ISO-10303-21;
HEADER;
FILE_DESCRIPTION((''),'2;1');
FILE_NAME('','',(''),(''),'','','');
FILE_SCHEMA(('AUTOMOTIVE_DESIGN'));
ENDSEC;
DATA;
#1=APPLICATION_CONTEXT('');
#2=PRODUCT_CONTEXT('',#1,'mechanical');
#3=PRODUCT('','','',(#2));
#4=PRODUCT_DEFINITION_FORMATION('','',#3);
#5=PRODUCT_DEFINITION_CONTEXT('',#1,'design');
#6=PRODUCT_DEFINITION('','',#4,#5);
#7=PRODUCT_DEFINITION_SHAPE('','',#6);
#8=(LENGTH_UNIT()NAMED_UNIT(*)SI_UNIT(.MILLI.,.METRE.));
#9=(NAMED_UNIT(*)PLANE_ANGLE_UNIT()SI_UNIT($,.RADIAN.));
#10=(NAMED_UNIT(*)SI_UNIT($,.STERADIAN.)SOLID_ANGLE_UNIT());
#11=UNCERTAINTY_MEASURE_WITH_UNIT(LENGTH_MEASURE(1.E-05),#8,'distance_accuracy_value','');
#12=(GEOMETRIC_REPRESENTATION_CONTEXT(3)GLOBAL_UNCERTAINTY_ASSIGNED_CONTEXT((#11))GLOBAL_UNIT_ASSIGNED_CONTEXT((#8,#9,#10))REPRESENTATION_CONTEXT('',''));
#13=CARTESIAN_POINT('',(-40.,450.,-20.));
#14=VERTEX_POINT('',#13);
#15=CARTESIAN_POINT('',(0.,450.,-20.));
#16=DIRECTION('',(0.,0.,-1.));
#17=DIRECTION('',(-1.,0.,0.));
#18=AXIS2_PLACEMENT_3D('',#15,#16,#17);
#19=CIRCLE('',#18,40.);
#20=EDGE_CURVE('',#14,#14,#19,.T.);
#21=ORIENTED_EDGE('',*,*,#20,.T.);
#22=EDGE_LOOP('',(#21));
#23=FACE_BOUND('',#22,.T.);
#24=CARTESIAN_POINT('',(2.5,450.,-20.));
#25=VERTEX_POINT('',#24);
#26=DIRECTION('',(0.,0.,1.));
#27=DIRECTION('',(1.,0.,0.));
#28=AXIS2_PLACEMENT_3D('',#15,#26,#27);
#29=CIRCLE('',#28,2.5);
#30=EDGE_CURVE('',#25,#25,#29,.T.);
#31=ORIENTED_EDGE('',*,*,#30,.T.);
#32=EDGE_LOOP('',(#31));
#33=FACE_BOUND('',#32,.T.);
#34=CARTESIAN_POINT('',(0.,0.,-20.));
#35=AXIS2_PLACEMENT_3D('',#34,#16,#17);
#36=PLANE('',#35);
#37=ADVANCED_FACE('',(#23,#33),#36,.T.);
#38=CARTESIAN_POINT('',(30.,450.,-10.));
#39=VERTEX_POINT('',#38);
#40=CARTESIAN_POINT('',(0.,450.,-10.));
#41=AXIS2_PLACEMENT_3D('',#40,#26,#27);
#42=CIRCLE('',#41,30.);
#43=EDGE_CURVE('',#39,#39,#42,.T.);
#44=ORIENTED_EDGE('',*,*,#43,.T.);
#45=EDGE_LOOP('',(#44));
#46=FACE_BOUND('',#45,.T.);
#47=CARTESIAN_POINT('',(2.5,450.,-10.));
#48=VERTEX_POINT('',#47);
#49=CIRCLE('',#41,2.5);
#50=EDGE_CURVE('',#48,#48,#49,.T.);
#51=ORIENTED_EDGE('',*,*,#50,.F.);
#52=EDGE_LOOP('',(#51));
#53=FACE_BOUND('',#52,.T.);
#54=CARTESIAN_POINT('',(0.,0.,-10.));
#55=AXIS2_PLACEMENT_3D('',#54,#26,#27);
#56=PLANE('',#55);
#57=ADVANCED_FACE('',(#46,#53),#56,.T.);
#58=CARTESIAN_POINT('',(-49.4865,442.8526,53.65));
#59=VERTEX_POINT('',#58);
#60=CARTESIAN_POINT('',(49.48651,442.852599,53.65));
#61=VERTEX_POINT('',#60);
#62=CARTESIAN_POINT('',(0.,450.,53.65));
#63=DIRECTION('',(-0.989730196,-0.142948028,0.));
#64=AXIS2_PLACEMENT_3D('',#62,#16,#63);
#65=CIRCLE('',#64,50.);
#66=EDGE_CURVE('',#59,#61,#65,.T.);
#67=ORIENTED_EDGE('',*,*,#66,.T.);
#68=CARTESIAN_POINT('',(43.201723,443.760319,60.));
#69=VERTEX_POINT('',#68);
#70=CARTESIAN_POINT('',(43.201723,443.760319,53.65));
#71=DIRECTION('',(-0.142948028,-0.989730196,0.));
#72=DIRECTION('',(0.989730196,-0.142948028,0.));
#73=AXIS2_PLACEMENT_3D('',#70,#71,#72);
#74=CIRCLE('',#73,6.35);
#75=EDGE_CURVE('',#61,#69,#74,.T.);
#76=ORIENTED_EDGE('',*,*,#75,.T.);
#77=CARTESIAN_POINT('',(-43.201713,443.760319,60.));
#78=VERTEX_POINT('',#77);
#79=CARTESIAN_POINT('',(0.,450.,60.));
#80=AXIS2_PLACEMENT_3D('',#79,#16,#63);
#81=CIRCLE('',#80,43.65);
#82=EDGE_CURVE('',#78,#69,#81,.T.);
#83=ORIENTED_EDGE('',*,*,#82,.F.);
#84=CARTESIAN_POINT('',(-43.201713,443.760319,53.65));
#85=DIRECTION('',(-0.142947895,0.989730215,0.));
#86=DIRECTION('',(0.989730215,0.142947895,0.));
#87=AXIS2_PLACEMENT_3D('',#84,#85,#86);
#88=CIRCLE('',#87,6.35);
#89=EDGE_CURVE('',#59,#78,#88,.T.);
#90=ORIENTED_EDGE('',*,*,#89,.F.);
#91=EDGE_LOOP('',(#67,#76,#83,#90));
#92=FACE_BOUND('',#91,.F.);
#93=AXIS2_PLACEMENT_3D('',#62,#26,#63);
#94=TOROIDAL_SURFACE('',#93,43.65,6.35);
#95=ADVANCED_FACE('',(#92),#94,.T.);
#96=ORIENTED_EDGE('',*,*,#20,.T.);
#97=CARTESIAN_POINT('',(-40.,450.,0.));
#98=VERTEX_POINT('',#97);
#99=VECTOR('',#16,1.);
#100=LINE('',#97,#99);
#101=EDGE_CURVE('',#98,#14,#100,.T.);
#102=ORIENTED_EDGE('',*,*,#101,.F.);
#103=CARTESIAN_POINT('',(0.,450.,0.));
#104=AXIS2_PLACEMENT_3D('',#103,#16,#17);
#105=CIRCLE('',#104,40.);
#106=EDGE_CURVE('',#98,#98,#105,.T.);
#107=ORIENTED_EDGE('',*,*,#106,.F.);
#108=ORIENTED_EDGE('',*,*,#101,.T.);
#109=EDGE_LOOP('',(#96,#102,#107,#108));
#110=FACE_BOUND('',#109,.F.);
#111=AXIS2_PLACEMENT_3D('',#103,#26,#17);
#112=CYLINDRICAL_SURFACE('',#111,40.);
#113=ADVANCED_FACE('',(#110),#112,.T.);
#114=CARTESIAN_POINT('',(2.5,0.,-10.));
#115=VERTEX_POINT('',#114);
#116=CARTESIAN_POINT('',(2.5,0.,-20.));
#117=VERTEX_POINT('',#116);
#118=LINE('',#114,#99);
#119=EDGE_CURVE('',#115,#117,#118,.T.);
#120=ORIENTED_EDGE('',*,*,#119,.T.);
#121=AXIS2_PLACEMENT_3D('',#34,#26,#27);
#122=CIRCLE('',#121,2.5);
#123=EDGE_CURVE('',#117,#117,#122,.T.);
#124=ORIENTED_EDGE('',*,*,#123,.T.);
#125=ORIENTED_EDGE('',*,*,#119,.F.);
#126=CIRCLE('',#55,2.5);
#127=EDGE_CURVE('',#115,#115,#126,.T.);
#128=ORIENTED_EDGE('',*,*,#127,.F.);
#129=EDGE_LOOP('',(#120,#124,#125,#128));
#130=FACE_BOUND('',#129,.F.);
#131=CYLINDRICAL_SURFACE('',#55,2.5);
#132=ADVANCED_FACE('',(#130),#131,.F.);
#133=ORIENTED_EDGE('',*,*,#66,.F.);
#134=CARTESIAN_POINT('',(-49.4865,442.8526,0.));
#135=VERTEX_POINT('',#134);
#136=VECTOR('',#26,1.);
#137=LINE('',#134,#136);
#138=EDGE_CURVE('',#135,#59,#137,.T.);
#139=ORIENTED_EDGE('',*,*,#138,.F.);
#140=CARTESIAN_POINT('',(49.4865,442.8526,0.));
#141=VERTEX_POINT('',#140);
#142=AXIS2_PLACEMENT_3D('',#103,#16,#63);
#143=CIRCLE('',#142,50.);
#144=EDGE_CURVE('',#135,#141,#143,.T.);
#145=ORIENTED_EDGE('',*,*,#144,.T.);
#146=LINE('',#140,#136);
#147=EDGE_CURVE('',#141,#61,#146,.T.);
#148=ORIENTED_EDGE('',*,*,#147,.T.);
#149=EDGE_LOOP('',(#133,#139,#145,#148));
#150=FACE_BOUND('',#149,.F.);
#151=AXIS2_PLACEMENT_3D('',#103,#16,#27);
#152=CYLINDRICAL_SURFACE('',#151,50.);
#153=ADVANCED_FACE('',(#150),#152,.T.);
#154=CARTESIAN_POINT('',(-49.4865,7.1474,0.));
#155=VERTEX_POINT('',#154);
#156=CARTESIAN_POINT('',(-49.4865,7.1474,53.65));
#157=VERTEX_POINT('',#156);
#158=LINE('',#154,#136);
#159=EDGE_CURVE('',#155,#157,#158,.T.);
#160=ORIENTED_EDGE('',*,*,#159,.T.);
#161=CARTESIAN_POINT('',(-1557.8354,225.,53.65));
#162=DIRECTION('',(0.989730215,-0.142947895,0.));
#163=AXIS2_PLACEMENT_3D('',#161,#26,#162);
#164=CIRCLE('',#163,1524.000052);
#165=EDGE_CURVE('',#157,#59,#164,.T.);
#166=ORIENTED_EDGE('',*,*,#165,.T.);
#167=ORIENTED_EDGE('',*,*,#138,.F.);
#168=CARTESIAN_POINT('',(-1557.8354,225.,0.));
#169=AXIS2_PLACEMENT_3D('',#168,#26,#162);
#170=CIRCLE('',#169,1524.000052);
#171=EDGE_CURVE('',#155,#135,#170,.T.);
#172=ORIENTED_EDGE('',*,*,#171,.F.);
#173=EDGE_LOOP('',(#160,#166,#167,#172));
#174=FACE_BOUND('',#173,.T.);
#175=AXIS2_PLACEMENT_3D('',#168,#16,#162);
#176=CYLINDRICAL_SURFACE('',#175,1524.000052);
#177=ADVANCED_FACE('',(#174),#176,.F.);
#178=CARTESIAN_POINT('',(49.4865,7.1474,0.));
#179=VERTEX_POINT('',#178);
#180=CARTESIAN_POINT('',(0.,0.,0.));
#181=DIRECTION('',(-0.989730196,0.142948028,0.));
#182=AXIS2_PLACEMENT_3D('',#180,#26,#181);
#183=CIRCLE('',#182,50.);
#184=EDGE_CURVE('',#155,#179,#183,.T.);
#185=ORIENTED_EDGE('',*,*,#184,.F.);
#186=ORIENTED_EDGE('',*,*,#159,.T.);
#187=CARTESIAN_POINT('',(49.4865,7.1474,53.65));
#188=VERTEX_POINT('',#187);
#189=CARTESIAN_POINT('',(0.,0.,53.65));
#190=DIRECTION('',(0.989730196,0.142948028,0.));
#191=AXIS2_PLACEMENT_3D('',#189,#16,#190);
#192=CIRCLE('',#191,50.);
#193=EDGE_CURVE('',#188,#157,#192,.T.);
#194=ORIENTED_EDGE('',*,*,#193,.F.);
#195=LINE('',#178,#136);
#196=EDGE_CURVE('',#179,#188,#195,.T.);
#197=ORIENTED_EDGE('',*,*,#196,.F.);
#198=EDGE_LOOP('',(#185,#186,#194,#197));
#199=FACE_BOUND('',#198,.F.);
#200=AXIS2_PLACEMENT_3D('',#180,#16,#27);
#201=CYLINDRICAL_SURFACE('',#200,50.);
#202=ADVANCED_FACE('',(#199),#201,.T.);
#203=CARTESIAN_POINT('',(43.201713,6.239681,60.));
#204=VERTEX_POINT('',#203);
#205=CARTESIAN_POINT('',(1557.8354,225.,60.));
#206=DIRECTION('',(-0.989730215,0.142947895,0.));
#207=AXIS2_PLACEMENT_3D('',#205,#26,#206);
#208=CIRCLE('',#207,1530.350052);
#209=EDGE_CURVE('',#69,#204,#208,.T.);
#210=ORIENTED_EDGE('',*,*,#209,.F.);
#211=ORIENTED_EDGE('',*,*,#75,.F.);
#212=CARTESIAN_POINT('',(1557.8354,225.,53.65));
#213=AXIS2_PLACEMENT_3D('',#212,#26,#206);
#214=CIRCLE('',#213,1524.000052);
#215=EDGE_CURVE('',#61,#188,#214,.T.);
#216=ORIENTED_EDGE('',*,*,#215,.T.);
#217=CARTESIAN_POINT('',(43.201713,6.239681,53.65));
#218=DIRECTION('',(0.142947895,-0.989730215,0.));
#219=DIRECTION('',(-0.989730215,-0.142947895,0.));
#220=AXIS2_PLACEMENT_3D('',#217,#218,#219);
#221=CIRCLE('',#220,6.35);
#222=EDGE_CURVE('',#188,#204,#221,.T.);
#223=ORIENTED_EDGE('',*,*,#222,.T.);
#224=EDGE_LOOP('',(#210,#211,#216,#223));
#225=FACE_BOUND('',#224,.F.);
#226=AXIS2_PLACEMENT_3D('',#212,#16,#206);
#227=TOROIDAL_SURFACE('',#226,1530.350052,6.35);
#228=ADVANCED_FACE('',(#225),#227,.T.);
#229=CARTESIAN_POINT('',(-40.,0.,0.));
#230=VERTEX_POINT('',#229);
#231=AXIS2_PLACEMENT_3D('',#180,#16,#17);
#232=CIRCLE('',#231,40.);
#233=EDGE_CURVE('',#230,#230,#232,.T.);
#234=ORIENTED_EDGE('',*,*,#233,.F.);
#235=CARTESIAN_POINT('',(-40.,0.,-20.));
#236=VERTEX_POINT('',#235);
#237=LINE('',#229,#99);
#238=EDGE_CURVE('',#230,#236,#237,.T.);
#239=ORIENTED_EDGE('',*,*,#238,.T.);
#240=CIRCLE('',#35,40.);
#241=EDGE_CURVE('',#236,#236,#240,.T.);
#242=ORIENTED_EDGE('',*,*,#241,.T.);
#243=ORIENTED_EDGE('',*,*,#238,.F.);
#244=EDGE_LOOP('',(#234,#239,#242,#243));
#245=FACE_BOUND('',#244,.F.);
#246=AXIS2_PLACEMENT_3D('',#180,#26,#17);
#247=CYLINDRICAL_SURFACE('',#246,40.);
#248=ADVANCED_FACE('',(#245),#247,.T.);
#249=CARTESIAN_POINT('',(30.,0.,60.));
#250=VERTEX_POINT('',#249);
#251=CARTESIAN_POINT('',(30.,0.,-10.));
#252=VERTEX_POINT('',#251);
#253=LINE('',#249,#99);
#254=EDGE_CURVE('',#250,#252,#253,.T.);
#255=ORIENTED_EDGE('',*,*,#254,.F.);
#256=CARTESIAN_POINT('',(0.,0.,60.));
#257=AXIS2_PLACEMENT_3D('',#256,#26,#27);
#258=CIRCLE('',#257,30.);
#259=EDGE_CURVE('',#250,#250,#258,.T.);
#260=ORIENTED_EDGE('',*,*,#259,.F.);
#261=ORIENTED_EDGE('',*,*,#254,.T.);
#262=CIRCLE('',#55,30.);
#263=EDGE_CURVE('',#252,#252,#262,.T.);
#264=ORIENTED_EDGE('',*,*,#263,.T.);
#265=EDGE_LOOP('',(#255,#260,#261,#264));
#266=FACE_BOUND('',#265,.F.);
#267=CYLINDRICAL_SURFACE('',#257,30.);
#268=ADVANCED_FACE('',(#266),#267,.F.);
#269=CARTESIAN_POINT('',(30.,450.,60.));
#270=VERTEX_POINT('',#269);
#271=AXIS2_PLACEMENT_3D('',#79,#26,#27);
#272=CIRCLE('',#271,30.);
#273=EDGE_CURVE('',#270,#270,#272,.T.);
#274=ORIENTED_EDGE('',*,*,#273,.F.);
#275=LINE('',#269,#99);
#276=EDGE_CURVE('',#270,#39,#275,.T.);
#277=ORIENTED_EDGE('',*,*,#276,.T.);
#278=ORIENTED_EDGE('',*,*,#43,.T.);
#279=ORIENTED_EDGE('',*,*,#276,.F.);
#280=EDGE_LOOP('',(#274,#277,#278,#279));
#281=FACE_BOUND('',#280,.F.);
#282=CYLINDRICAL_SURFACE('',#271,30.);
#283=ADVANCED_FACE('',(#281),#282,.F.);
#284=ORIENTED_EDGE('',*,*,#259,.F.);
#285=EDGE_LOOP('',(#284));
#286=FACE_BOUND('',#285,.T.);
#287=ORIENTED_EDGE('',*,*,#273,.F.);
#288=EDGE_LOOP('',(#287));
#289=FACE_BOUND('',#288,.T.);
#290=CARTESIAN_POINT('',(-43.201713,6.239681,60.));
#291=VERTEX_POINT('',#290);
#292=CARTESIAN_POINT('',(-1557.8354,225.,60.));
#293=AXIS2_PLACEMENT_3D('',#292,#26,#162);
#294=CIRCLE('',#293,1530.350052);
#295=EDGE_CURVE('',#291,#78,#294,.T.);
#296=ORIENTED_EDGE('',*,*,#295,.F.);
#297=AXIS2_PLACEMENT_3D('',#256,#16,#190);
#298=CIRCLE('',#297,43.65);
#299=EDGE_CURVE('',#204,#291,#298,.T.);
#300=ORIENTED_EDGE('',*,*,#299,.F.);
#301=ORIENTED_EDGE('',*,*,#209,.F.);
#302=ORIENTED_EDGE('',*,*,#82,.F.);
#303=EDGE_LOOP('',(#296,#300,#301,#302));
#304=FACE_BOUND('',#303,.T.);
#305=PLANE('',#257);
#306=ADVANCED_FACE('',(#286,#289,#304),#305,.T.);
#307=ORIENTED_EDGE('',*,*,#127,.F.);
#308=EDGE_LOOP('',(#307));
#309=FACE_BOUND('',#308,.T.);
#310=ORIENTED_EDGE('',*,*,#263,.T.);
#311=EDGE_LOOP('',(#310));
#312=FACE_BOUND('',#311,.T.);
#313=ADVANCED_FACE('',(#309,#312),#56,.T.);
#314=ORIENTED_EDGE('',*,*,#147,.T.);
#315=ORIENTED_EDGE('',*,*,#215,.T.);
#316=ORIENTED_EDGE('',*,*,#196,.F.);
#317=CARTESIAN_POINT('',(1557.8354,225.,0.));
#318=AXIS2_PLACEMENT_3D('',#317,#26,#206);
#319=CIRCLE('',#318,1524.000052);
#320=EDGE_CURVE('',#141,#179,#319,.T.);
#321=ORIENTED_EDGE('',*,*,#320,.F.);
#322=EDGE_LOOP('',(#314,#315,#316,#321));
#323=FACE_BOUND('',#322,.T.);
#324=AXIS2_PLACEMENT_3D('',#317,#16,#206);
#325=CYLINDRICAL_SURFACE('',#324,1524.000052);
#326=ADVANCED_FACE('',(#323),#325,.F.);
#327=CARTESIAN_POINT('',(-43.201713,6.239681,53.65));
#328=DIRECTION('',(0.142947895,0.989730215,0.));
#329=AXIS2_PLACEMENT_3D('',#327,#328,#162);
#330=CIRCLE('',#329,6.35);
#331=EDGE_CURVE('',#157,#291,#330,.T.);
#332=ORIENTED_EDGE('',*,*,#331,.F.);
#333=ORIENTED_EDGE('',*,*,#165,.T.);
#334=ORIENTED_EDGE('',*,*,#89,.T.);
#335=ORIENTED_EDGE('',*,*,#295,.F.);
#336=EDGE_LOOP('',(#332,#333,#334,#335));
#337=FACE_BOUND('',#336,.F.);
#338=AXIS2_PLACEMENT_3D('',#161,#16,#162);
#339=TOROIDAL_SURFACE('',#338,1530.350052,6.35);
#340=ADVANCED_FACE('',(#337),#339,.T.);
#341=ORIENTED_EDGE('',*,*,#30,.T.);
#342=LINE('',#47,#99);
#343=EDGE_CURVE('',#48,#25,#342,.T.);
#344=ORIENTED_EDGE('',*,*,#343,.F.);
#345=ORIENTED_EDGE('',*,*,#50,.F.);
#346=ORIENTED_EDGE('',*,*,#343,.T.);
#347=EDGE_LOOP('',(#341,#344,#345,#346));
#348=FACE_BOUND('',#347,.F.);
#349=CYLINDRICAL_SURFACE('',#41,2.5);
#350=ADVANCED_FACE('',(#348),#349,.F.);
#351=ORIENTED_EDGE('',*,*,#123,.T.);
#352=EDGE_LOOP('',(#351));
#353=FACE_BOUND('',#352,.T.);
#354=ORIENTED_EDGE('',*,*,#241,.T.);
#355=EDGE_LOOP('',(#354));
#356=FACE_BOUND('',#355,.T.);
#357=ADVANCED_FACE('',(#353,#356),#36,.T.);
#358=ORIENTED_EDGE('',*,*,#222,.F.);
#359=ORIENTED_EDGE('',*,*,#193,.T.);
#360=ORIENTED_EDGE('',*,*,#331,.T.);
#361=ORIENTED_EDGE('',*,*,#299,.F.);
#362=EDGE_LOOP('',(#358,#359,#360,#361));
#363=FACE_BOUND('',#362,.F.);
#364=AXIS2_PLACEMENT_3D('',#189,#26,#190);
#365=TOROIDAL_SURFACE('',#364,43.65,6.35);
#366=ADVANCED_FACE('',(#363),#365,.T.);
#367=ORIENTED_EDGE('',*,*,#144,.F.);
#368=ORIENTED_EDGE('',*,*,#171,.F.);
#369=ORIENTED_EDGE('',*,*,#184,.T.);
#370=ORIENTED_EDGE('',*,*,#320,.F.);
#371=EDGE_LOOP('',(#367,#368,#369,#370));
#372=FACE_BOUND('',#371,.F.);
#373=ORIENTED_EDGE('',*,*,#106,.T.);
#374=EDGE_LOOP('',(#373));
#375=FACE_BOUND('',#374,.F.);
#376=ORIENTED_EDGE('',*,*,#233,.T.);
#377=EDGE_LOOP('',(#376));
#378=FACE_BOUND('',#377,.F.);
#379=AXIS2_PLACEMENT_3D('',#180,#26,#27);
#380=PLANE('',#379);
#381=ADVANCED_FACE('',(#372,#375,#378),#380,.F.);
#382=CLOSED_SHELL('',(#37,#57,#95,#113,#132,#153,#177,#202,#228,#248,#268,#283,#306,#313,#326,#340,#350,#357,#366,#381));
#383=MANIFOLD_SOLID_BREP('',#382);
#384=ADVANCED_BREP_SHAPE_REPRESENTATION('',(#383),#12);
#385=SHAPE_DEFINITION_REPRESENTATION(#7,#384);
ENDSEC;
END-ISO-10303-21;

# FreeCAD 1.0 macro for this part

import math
import FreeCAD as App
import Part
import Sketcher

V = App.Vector
Q = App.Units.Quantity


def edges_at(feature, points):
    """Names of the edges that pass closest to the given points."""
    edges = feature.Shape.Edges
    near = lambda p: min(range(len(edges)), key=lambda i: edges[i].distToShape(Part.Vertex(*p))[0])
    return sorted({f"Edge{near(p) + 1}" for p in points})

doc = App.newDocument("Part")
body = doc.addObject("PartDesign::Body", "Body")

sketch1 = body.newObject("Sketcher::SketchObject", "Sketch")
sketch1.AttachmentSupport = (doc.getObject("XY_Plane"), [""])
sketch1.MapMode = "FlatFace"
sketch1.addGeometry([
    Part.ArcOfCircle(Part.Circle(V(0, 0, 0), V(0, 0, 1), 50), math.radians(172), math.radians(368)),
    Part.ArcOfCircle(Part.Circle(V(1558, 225, 0), V(0, 0, 1), 1524), math.radians(171.78), math.radians(188.22)),
    Part.ArcOfCircle(Part.Circle(V(0, 450, 0), V(0, 0, 1), 50), math.radians(-8), math.radians(188)),
    Part.ArcOfCircle(Part.Circle(V(-1558, 225, 0), V(0, 0, 1), 1524), math.radians(-8.22), math.radians(8.22)),
], False)
sketch1.addConstraint([
    Sketcher.Constraint("Tangent", 0, 2, 1, 2),
    Sketcher.Constraint("Tangent", 1, 1, 2, 1),
    Sketcher.Constraint("Tangent", 2, 2, 3, 2),
    Sketcher.Constraint("Tangent", 3, 1, 0, 1),
    Sketcher.Constraint("Coincident", 0, 3, -1, 1),
    Sketcher.Constraint("Equal", 0, 2),
    Sketcher.Constraint("Equal", 1, 3),
    Sketcher.Constraint("PointOnObject", 2, 3, -2),
    Sketcher.Constraint("Radius", 1, Q("60 in")),
    Sketcher.Constraint("Radius", 0, Q("1.9685 in")),
    Sketcher.Constraint("DistanceY", -1, 1, 2, 3, 450.0),
])
pad1 = body.newObject("PartDesign::Pad", "Pad")
pad1.Profile = sketch1
pad1.Length = Q("2.3622047 in")
doc.recompute()

fillet = body.newObject("PartDesign::Fillet", "Fillet")
fillet.Base = (pad1, edges_at(pad1, [
    (-33.835, 225, 60),
    (0, -50, 60),
    (33.835, 225, 60),
    (0, 500, 60),
]))
fillet.Radius = Q("0.25 in")

sketch2 = body.newObject("Sketcher::SketchObject", "Sketch001")
sketch2.AttachmentSupport = (doc.getObject("XY_Plane"), [""])
sketch2.MapMode = "FlatFace"
sketch2.addGeometry([
    Part.Circle(V(0, 450, 0), V(0, 0, 1), 40),
    Part.Circle(V(0, 0, 0), V(0, 0, 1), 40),
], False)
sketch2.addConstraint([
    Sketcher.Constraint("Coincident", 1, 3, -1, 1),
    Sketcher.Constraint("Equal", 0, 1),
    Sketcher.Constraint("PointOnObject", 0, 3, -2),
    Sketcher.Constraint("Diameter", 0, Q("3.1496 in")),
    Sketcher.Constraint("DistanceY", -1, 1, 0, 3, 450.0),
])
pad2 = body.newObject("PartDesign::Pad", "Pad001")
pad2.Profile = sketch2
pad2.Length = Q("0.7874016 in")
pad2.Reversed = True

sketch3 = body.newObject("Sketcher::SketchObject", "Sketch002")
sketch3.AttachmentSupport = (doc.getObject("XY_Plane"), [""])
sketch3.MapMode = "FlatFace"
sketch3.AttachmentOffset = App.Placement(V(0, 0, 2.3622047 * 25.4), App.Rotation())
sketch3.addGeometry([
    Part.Circle(V(0, 0, 0), V(0, 0, 1), 30),
    Part.Circle(V(0, 450, 0), V(0, 0, 1), 30),
], False)
sketch3.addConstraint([
    Sketcher.Constraint("Coincident", 0, 3, -1, 1),
    Sketcher.Constraint("Equal", 0, 1),
    Sketcher.Constraint("PointOnObject", 1, 3, -2),
    Sketcher.Constraint("Diameter", 0, Q("2.3622 in")),
    Sketcher.Constraint("DistanceY", -1, 1, 1, 3, 450.0),
])
pocket1 = body.newObject("PartDesign::Pocket", "Pocket")
pocket1.Profile = sketch3
pocket1.Length = Q("2.7559055 in")

sketch4 = body.newObject("Sketcher::SketchObject", "Sketch003")
sketch4.AttachmentSupport = (doc.getObject("XY_Plane"), [""])
sketch4.MapMode = "FlatFace"
sketch4.AttachmentOffset = App.Placement(V(0, 0, -0.3937008 * 25.4), App.Rotation())
sketch4.addGeometry([
    Part.Circle(V(0, 450, 0), V(0, 0, 1), 2.5),
    Part.Circle(V(0, 0, 0), V(0, 0, 1), 2.5),
], False)
sketch4.addConstraint([
    Sketcher.Constraint("Coincident", 1, 3, -1, 1),
    Sketcher.Constraint("Equal", 0, 1),
    Sketcher.Constraint("PointOnObject", 0, 3, -2),
    Sketcher.Constraint("Diameter", 0, 5.0),
    Sketcher.Constraint("DistanceY", -1, 1, 0, 3, 450.0),
])
pocket2 = body.newObject("PartDesign::Pocket", "Pocket001")
pocket2.Profile = sketch4
pocket2.Type = "ThroughAll"

doc.recompute()
